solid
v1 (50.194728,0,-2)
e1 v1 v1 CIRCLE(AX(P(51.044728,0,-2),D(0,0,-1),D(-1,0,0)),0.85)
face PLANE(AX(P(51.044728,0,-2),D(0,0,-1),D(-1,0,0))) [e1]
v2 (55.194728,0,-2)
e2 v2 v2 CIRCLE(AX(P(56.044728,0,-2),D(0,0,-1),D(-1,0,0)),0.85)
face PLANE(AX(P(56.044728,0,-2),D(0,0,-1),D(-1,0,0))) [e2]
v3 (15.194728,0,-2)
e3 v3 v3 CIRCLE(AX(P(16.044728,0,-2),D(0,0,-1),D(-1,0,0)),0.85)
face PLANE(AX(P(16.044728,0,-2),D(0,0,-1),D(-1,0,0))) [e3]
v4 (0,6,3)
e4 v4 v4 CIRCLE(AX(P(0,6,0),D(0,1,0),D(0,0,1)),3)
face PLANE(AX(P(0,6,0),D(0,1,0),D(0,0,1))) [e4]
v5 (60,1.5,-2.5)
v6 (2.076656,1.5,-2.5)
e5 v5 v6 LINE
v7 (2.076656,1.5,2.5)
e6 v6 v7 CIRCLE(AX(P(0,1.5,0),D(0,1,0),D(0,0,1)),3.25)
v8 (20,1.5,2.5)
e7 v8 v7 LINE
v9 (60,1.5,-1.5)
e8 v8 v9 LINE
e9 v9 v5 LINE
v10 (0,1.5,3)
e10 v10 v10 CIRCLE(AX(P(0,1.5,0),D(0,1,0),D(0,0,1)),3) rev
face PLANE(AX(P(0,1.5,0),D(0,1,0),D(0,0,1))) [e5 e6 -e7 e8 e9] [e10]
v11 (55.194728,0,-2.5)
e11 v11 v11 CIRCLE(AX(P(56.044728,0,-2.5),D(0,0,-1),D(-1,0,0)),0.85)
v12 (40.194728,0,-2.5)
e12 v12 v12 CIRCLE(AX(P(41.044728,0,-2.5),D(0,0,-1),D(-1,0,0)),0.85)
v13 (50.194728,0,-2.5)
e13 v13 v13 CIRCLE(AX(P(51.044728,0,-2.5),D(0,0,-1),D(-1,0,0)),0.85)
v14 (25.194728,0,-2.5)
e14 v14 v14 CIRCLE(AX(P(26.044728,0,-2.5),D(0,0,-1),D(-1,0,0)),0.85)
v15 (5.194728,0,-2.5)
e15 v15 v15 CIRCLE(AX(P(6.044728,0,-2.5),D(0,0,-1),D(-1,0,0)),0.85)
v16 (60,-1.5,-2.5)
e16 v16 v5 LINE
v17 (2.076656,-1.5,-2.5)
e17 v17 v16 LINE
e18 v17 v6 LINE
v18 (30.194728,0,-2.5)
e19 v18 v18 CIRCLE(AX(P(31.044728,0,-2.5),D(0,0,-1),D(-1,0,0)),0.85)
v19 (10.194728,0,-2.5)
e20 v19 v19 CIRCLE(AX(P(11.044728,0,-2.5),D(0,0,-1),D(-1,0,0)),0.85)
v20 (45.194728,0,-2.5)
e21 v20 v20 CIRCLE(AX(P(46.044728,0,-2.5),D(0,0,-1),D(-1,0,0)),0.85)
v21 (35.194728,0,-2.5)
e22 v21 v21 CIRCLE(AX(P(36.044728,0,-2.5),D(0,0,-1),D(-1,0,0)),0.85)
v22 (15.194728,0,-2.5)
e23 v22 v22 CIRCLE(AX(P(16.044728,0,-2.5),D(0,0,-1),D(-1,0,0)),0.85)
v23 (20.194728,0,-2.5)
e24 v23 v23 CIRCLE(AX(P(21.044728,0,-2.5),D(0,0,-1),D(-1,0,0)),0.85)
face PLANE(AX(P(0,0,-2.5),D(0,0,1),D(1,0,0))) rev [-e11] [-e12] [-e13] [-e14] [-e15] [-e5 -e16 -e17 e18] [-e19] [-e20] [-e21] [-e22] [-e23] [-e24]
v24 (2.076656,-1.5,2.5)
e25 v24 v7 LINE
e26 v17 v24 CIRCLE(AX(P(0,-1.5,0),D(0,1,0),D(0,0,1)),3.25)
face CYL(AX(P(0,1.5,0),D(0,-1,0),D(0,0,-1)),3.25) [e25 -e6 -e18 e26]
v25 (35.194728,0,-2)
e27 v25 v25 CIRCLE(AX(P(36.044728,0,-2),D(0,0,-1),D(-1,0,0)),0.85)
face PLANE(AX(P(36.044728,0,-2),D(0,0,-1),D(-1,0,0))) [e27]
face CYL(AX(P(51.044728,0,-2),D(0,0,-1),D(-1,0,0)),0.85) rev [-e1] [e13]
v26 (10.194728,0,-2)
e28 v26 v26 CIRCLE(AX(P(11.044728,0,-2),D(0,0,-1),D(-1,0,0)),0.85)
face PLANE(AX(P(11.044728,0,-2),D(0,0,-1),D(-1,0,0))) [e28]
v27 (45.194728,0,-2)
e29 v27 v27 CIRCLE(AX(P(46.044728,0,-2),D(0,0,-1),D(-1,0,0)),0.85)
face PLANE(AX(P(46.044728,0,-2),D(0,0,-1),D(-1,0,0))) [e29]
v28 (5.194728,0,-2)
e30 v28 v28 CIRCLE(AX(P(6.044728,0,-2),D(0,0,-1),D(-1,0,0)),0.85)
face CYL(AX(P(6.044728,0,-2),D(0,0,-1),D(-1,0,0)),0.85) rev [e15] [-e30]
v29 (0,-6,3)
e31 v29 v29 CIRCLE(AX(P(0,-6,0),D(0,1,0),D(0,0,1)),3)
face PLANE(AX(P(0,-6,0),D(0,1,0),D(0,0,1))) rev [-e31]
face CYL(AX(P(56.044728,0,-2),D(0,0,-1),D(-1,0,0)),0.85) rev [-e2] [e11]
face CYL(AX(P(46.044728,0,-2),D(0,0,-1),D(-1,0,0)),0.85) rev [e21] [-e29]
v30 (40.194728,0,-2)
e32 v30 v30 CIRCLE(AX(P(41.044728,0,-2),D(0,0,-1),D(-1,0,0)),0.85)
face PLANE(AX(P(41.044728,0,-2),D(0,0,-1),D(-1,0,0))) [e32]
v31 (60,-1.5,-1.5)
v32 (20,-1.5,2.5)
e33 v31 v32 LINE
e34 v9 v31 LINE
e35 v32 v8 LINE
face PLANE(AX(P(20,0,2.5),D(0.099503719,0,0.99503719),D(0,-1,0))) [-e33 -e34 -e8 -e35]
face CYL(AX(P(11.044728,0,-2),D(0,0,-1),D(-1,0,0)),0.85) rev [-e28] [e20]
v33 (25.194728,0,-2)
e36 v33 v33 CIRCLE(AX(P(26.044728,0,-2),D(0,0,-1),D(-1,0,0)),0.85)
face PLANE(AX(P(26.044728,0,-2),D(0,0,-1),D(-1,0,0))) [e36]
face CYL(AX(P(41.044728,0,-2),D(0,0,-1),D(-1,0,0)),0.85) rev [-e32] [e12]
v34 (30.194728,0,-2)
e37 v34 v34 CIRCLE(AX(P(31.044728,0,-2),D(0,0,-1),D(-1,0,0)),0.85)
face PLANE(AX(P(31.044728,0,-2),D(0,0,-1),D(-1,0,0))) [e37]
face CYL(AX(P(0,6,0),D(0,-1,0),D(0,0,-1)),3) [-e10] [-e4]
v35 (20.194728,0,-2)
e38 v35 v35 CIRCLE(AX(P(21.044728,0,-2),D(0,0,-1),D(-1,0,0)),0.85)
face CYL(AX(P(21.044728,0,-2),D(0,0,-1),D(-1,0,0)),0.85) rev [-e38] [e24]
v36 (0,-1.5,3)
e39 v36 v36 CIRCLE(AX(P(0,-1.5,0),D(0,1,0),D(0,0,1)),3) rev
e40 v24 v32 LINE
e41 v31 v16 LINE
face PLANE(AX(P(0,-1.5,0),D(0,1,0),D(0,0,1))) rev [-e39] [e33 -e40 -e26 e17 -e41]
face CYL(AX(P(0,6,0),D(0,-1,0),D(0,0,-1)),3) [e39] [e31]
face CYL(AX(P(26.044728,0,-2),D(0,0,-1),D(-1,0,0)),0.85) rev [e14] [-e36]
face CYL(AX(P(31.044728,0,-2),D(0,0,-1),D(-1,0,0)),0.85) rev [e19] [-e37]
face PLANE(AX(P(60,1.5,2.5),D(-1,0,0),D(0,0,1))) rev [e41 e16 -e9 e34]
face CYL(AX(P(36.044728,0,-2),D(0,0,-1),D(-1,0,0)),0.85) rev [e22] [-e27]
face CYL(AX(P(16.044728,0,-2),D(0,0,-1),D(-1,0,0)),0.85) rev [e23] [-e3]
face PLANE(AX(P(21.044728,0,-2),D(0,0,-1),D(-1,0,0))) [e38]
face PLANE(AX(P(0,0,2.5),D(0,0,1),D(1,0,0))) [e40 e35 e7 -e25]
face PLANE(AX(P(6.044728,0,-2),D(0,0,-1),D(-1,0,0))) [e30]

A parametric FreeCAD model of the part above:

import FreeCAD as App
import Part
import Sketcher
from FreeCAD import Vector


def edges_at(feature, points):
    """Names of the edges that pass closest to the given points."""
    edges = feature.Shape.Edges
    near = lambda p: min(range(len(edges)), key=lambda i: edges[i].distToShape(Part.Vertex(*p))[0])
    return sorted({f"Edge{near(p) + 1}" for p in points})


def add_polygon(sketch, points):
    """Adds a closed chain of lines whose ends are joined by coincident constraints."""
    first, n = sketch.GeometryCount, len(points)
    for a, b in zip(points, points[1:] + points[:1]):
        sketch.addGeometry(Part.LineSegment(App.Vector(*a, 0), App.Vector(*b, 0)), False)
    for i in range(n):
        sketch.addConstraint(Sketcher.Constraint("Coincident", first + i, 2, first + (i + 1) % n, 1))

doc = App.newDocument("Part")
body = doc.addObject("PartDesign::Body", "Body")

# Sketch on XZ plane
sketch1 = body.newObject("Sketcher::SketchObject", "Sketch")
sketch1.AttachmentSupport = (doc.getObject("XZ_Plane"), [""])
sketch1.MapMode = "FlatFace"
sketch1.addGeometry(Part.Circle(Vector(0, 0, 0), Vector(0, 0, 1), 3.2), False)
sketch1.addConstraint(Sketcher.Constraint("Coincident", 0, 3, -1, 1))
sketch1.addConstraint(Sketcher.Constraint("Diameter", 0, 6.5))
pad1 = body.newObject("PartDesign::Pad", "Pad")
pad1.Profile = sketch1
pad1.Length = 3
pad1.Midplane = True

# Sketch on XZ plane
sketch2 = body.newObject("Sketcher::SketchObject", "Sketch001")
sketch2.AttachmentSupport = (doc.getObject("XZ_Plane"), [""])
sketch2.MapMode = "FlatFace"
sketch2.addGeometry(Part.Circle(Vector(0, 0, 0), Vector(0, 0, 1), 3), False)
sketch2.addConstraint(Sketcher.Constraint("Coincident", 0, 3, -1, 1))
sketch2.addConstraint(Sketcher.Constraint("Diameter", 0, 6.0))
pad2 = body.newObject("PartDesign::Pad", "Pad001")
pad2.Profile = sketch2
pad2.Length = 12
pad2.Midplane = True

# Sketch on XY plane
sketch3 = body.newObject("Sketcher::SketchObject", "Sketch002")
sketch3.AttachmentSupport = (doc.getObject("XY_Plane"), [""])
sketch3.MapMode = "FlatFace"
add_polygon(sketch3, [(0, 1.5), (0, -1.5), (60, -1.5), (60, 1.5)])  # lines 0-3
sketch3.addConstraint(Sketcher.Constraint("Vertical", 0))
sketch3.addConstraint(Sketcher.Constraint("Horizontal", 1))
sketch3.addConstraint(Sketcher.Constraint("Vertical", 2))
sketch3.addConstraint(Sketcher.Constraint("Horizontal", 3))
sketch3.addConstraint(Sketcher.Constraint("Symmetric", 0, 2, 3, 2, -1, 1))
sketch3.addConstraint(Sketcher.Constraint("DistanceX", 1, 1, 1, 2, 60.0))
sketch3.addConstraint(Sketcher.Constraint("DistanceY", 0, 2, 0, 1, 3.0))
pad3 = body.newObject("PartDesign::Pad", "Pad002")
pad3.Profile = sketch3
pad3.Length = 5
pad3.Midplane = True
doc.recompute()

chamfer = body.newObject("PartDesign::Chamfer", "Chamfer")
chamfer.Base = (pad3, edges_at(pad3, [(60, 0, 2.5)]))
chamfer.ChamferType = "Two distances"
chamfer.Size = 4
chamfer.Size2 = 40

# Sketch on XY plane
sketch4 = body.newObject("Sketcher::SketchObject", "Sketch003")
sketch4.AttachmentSupport = (doc.getObject("XY_Plane"), [""])
sketch4.MapMode = "FlatFace"
sketch4.AttachmentOffset = App.Placement(Vector(0, 0, -2.5), App.Rotation())
sketch4.addGeometry(Part.Circle(Vector(6, 0, 0), Vector(0, 0, 1), 0.8), False)
sketch4.addGeometry(Part.Circle(Vector(11, 0, 0), Vector(0, 0, 1), 0.8), False)
sketch4.addGeometry(Part.Circle(Vector(16, 0, 0), Vector(0, 0, 1), 0.8), False)
sketch4.addGeometry(Part.Circle(Vector(21, 0, 0), Vector(0, 0, 1), 0.8), False)
sketch4.addGeometry(Part.Circle(Vector(26, 0, 0), Vector(0, 0, 1), 0.8), False)
sketch4.addGeometry(Part.Circle(Vector(31, 0, 0), Vector(0, 0, 1), 0.8), False)
sketch4.addGeometry(Part.Circle(Vector(36, 0, 0), Vector(0, 0, 1), 0.8), False)
sketch4.addGeometry(Part.Circle(Vector(41, 0, 0), Vector(0, 0, 1), 0.8), False)
sketch4.addGeometry(Part.Circle(Vector(46, 0, 0), Vector(0, 0, 1), 0.8), False)
sketch4.addGeometry(Part.Circle(Vector(51, 0, 0), Vector(0, 0, 1), 0.8), False)
sketch4.addGeometry(Part.Circle(Vector(56, 0, 0), Vector(0, 0, 1), 0.8), False)
sketch4.addConstraint(Sketcher.Constraint("Equal", 0, 1))
sketch4.addConstraint(Sketcher.Constraint("Equal", 1, 2))
sketch4.addConstraint(Sketcher.Constraint("Equal", 2, 3))
sketch4.addConstraint(Sketcher.Constraint("Equal", 3, 4))
sketch4.addConstraint(Sketcher.Constraint("Equal", 4, 5))
sketch4.addConstraint(Sketcher.Constraint("Equal", 5, 6))
sketch4.addConstraint(Sketcher.Constraint("Equal", 6, 7))
sketch4.addConstraint(Sketcher.Constraint("Equal", 7, 8))
sketch4.addConstraint(Sketcher.Constraint("Equal", 8, 9))
sketch4.addConstraint(Sketcher.Constraint("Equal", 9, 10))
sketch4.addConstraint(Sketcher.Constraint("PointOnObject", 0, 3, -1))
sketch4.addConstraint(Sketcher.Constraint("PointOnObject", 1, 3, -1))
sketch4.addConstraint(Sketcher.Constraint("PointOnObject", 2, 3, -1))
sketch4.addConstraint(Sketcher.Constraint("PointOnObject", 3, 3, -1))
sketch4.addConstraint(Sketcher.Constraint("PointOnObject", 4, 3, -1))
sketch4.addConstraint(Sketcher.Constraint("PointOnObject", 5, 3, -1))
sketch4.addConstraint(Sketcher.Constraint("PointOnObject", 6, 3, -1))
sketch4.addConstraint(Sketcher.Constraint("PointOnObject", 7, 3, -1))
sketch4.addConstraint(Sketcher.Constraint("PointOnObject", 8, 3, -1))
sketch4.addConstraint(Sketcher.Constraint("PointOnObject", 9, 3, -1))
sketch4.addConstraint(Sketcher.Constraint("PointOnObject", 10, 3, -1))
sketch4.addConstraint(Sketcher.Constraint("Diameter", 0, 1.7))
sketch4.addConstraint(Sketcher.Constraint("DistanceX", 0, 3, 1, 3, 5.0))
sketch4.addConstraint(Sketcher.Constraint("DistanceX", 1, 3, 2, 3, 5.0))
sketch4.addConstraint(Sketcher.Constraint("DistanceX", 2, 3, 3, 3, 5.0))
sketch4.addConstraint(Sketcher.Constraint("DistanceX", 3, 3, 4, 3, 5.0))
sketch4.addConstraint(Sketcher.Constraint("DistanceX", 4, 3, 5, 3, 5.0))
sketch4.addConstraint(Sketcher.Constraint("DistanceX", 5, 3, 6, 3, 5.0))
sketch4.addConstraint(Sketcher.Constraint("DistanceX", 6, 3, 7, 3, 5.0))
sketch4.addConstraint(Sketcher.Constraint("DistanceX", 7, 3, 8, 3, 5.0))
sketch4.addConstraint(Sketcher.Constraint("DistanceX", 8, 3, 9, 3, 5.0))
sketch4.addConstraint(Sketcher.Constraint("DistanceX", 9, 3, 10, 3, 5.0))
sketch4.addConstraint(Sketcher.Constraint("DistanceX", -1, 1, 0, 3, 6.044728))
pocket1 = body.newObject("PartDesign::Pocket", "Pocket")
pocket1.Profile = sketch4
pocket1.Length = 0.5
pocket1.Reversed = True

doc.recompute()
